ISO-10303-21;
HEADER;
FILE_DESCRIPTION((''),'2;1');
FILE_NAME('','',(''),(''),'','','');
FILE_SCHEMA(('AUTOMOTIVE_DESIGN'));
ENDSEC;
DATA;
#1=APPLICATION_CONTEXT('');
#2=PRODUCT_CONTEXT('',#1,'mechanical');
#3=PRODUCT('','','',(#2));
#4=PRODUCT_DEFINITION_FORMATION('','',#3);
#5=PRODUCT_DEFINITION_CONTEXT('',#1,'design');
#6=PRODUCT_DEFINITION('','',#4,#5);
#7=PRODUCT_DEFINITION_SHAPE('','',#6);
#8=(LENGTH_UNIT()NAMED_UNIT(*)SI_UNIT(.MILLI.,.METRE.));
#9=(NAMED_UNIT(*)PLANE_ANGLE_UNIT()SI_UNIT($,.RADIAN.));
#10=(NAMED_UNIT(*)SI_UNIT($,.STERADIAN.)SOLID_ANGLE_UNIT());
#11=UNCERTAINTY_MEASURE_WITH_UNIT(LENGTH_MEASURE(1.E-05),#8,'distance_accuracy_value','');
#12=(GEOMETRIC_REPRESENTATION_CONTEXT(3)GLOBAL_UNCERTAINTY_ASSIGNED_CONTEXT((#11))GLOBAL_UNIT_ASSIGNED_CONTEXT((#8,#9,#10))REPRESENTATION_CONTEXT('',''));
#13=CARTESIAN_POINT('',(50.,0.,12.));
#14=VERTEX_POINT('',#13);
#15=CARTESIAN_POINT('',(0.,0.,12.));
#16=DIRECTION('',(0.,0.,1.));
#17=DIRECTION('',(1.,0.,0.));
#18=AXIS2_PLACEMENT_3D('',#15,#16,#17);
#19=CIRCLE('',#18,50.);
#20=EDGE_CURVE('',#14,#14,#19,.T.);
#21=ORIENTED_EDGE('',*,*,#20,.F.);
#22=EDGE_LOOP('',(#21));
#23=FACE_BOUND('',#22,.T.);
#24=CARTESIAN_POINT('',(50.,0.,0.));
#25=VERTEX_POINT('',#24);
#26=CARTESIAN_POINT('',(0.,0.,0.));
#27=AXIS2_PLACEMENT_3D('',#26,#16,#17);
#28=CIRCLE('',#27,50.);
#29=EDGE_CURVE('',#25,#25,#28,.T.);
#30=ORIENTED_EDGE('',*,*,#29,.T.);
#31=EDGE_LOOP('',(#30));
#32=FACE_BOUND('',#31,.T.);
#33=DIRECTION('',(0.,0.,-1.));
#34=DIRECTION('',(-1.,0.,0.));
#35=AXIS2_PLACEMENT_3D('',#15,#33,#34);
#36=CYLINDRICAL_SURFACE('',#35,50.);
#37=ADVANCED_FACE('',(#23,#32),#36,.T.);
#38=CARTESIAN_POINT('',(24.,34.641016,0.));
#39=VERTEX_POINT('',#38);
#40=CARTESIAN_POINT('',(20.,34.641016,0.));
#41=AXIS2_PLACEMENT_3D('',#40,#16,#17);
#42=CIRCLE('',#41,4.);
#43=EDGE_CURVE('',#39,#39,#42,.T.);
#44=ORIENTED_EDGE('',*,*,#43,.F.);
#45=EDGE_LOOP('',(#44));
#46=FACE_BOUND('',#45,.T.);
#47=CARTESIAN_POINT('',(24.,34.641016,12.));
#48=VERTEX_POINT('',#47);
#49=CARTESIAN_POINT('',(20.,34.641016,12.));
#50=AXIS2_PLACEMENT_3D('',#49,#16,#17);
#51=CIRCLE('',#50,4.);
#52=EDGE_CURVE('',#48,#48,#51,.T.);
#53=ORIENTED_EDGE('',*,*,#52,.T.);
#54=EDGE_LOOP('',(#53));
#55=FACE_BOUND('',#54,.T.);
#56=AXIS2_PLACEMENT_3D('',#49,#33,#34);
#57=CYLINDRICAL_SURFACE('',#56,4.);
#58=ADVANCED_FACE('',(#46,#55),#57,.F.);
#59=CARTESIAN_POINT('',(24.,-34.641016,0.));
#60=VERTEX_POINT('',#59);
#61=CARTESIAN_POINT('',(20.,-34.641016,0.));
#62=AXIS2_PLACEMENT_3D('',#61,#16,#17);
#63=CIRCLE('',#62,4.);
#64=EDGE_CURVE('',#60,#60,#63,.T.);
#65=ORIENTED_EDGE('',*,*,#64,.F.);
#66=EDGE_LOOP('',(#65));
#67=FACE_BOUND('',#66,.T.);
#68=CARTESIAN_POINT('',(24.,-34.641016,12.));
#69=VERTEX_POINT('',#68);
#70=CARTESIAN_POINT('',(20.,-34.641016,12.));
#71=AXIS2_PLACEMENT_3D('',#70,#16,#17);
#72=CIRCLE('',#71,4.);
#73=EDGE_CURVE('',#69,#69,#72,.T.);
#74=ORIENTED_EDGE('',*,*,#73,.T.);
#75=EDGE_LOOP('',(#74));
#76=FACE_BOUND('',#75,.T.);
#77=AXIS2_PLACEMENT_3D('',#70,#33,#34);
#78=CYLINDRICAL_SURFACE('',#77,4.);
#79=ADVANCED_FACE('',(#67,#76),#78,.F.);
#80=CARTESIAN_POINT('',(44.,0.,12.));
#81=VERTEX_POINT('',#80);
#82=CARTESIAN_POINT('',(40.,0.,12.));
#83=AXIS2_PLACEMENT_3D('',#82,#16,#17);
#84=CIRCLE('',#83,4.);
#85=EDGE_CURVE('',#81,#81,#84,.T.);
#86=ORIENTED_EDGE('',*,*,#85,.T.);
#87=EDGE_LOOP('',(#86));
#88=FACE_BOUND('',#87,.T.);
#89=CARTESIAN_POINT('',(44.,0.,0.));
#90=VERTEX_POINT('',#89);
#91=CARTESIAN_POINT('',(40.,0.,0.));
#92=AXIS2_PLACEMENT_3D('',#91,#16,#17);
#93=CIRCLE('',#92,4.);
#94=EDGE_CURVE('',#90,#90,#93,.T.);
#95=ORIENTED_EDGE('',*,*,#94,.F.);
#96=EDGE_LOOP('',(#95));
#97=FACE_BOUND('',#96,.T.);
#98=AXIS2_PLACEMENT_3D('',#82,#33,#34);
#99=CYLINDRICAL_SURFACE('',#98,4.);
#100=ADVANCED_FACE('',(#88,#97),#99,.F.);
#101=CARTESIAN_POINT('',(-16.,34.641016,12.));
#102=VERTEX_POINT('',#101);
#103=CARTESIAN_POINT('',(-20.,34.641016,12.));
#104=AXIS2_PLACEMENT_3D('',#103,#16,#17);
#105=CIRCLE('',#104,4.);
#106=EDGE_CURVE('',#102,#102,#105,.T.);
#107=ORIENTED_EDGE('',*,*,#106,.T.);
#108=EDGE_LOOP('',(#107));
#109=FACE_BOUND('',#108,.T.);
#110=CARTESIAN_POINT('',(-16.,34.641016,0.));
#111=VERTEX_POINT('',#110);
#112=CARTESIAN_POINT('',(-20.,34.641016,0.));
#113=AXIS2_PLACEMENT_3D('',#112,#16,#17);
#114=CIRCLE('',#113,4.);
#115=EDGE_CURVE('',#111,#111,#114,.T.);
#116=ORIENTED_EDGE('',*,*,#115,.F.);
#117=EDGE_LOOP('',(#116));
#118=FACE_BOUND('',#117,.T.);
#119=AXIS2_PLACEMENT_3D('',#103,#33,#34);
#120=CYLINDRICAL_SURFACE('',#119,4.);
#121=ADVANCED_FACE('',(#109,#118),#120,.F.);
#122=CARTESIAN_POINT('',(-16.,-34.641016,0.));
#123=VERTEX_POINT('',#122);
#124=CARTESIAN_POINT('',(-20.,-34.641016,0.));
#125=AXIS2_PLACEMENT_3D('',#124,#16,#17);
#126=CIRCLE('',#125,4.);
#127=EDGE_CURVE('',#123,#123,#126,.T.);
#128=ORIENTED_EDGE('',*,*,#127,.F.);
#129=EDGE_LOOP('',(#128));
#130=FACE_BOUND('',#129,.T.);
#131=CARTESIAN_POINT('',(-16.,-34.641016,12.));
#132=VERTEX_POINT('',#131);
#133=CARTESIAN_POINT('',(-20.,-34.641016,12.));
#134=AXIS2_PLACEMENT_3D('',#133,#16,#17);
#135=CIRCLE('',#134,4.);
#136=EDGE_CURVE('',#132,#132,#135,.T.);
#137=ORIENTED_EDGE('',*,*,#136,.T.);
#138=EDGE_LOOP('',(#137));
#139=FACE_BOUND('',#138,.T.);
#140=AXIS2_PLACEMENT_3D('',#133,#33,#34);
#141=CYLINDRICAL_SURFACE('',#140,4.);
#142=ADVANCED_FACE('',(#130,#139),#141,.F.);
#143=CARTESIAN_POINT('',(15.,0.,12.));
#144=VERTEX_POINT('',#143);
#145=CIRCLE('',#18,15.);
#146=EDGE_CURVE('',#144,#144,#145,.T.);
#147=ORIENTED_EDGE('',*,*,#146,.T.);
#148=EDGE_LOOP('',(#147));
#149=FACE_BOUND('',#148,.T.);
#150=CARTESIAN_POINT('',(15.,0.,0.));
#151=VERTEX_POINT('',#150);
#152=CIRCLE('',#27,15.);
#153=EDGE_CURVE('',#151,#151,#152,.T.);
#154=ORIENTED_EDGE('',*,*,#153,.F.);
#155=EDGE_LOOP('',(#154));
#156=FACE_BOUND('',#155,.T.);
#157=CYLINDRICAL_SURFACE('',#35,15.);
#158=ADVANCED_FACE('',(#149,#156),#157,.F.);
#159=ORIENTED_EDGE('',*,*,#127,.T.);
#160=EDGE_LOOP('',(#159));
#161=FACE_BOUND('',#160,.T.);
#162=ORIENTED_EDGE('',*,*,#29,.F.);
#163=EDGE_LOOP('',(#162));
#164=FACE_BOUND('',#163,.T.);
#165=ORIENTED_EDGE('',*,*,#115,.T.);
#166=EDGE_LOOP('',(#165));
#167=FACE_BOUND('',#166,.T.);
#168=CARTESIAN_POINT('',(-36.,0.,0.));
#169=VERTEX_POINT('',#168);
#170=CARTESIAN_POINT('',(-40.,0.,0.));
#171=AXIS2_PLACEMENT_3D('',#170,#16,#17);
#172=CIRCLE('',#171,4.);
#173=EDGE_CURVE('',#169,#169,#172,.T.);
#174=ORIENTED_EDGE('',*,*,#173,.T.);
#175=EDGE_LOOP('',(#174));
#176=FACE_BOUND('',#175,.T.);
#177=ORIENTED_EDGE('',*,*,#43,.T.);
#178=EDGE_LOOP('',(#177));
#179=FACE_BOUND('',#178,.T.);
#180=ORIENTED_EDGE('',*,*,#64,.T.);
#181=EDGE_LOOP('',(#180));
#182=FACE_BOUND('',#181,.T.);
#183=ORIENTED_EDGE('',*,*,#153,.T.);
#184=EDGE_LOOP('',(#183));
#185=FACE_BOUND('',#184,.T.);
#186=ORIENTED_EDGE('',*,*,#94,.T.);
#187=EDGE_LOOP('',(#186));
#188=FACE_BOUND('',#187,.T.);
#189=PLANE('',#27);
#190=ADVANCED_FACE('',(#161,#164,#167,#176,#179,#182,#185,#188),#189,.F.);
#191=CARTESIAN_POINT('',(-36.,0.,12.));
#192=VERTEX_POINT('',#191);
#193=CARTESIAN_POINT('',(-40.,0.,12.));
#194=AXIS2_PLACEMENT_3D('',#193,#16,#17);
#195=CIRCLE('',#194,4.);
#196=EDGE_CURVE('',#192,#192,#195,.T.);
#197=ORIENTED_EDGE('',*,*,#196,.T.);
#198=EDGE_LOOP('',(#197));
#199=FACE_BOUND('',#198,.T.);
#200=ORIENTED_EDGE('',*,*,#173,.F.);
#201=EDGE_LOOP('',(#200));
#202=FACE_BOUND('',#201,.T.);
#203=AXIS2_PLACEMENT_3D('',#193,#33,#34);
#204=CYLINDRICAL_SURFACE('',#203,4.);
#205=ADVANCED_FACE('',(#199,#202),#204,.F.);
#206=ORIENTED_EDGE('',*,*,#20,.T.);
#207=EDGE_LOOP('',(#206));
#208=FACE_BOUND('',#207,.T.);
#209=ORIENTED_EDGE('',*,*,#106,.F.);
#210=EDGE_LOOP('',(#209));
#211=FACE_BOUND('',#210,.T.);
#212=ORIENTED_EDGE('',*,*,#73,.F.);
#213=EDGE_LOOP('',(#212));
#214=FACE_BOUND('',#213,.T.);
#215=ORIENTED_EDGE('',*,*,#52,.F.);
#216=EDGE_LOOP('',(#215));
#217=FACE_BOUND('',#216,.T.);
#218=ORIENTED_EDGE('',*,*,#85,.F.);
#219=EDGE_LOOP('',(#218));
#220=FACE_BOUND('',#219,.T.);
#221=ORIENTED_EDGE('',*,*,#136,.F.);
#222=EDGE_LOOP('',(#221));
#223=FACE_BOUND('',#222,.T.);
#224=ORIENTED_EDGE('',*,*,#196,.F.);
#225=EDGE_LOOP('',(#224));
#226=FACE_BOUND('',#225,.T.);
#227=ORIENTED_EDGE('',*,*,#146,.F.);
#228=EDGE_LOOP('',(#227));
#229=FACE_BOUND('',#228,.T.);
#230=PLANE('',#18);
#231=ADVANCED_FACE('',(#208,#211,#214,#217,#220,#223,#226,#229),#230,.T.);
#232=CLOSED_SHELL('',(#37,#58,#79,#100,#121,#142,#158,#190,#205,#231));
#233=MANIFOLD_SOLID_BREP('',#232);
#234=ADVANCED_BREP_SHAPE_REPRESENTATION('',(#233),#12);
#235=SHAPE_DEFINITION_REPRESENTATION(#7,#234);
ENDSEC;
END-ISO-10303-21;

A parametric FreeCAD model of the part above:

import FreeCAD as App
import Part
import Sketcher
from FreeCAD import Vector

doc = App.newDocument("Part")
body = doc.addObject("PartDesign::Body", "Body")

# Sketch on XY plane
sketch1 = doc.addObject("Sketcher::SketchObject", "Sketch")
body.addObject(sketch1)
sketch1.AttachmentSupport = (doc.XY_Plane, [""])
sketch1.MapMode = "FlatFace"
sketch1.addGeometry(Part.Circle(Vector(0, 0, 0), Vector(0, 0, 1), 50), False)
sketch1.addGeometry(Part.Circle(Vector(0, 0, 0), Vector(0, 0, 1), 15), False)
sketch1.addConstraint(Sketcher.Constraint("Coincident", 0, 3, -1, 1))
sketch1.addConstraint(Sketcher.Constraint("Coincident", 1, 3, -1, 1))
sketch1.addConstraint(Sketcher.Constraint("Diameter", 0, 100.0))
sketch1.addConstraint(Sketcher.Constraint("Diameter", 1, 30.0))
pad1 = doc.addObject("PartDesign::Pad", "Pad")
body.addObject(pad1)
pad1.Profile = sketch1
pad1.Length = 12

# Sketch on XY plane
sketch2 = doc.addObject("Sketcher::SketchObject", "Sketch001")
body.addObject(sketch2)
sketch2.AttachmentSupport = (doc.XY_Plane, [""])
sketch2.MapMode = "FlatFace"
sketch2.addGeometry(Part.Circle(Vector(40, 0, 0), Vector(0, 0, 1), 4), False)
sketch2.addGeometry(Part.Circle(Vector(20, 34.6, 0), Vector(0, 0, 1), 4), False)
sketch2.addGeometry(Part.Circle(Vector(-20, 34.6, 0), Vector(0, 0, 1), 4), False)
sketch2.addGeometry(Part.Circle(Vector(-40, 0, 0), Vector(0, 0, 1), 4), False)
sketch2.addGeometry(Part.Circle(Vector(-20, -34.6, 0), Vector(0, 0, 1), 4), False)
sketch2.addGeometry(Part.Circle(Vector(20, -34.6, 0), Vector(0, 0, 1), 4), False)
sketch2.addConstraint(Sketcher.Constraint("Equal", 0, 1))
sketch2.addConstraint(Sketcher.Constraint("Equal", 1, 2))
sketch2.addConstraint(Sketcher.Constraint("Equal", 2, 3))
sketch2.addConstraint(Sketcher.Constraint("Equal", 3, 4))
sketch2.addConstraint(Sketcher.Constraint("Equal", 4, 5))
sketch2.addConstraint(Sketcher.Constraint("Symmetric", 0, 3, 3, 3, -1, 1))
sketch2.addConstraint(Sketcher.Constraint("Symmetric", 1, 3, 4, 3, -1, 1))
sketch2.addConstraint(Sketcher.Constraint("Symmetric", 2, 3, 5, 3, -1, 1))
sketch2.addConstraint(Sketcher.Constraint("Symmetric", 1, 3, 2, 3, -2))
sketch2.addConstraint(Sketcher.Constraint("PointOnObject", 0, 3, -1))
sketch2.addConstraint(Sketcher.Constraint("Diameter", 0, 8.0))
sketch2.addConstraint(Sketcher.Constraint("DistanceX", -1, 1, 0, 3, 40.0))
sketch2.addConstraint(Sketcher.Constraint("DistanceX", -1, 1, 1, 3, 20.0))
sketch2.addConstraint(Sketcher.Constraint("DistanceY", 4, 3, 2, 3, 69.282032))
pocket1 = doc.addObject("PartDesign::Pocket", "Pocket")
body.addObject(pocket1)
pocket1.Profile = sketch2
pocket1.Type = "ThroughAll"
pocket1.Reversed = True

doc.recompute()
